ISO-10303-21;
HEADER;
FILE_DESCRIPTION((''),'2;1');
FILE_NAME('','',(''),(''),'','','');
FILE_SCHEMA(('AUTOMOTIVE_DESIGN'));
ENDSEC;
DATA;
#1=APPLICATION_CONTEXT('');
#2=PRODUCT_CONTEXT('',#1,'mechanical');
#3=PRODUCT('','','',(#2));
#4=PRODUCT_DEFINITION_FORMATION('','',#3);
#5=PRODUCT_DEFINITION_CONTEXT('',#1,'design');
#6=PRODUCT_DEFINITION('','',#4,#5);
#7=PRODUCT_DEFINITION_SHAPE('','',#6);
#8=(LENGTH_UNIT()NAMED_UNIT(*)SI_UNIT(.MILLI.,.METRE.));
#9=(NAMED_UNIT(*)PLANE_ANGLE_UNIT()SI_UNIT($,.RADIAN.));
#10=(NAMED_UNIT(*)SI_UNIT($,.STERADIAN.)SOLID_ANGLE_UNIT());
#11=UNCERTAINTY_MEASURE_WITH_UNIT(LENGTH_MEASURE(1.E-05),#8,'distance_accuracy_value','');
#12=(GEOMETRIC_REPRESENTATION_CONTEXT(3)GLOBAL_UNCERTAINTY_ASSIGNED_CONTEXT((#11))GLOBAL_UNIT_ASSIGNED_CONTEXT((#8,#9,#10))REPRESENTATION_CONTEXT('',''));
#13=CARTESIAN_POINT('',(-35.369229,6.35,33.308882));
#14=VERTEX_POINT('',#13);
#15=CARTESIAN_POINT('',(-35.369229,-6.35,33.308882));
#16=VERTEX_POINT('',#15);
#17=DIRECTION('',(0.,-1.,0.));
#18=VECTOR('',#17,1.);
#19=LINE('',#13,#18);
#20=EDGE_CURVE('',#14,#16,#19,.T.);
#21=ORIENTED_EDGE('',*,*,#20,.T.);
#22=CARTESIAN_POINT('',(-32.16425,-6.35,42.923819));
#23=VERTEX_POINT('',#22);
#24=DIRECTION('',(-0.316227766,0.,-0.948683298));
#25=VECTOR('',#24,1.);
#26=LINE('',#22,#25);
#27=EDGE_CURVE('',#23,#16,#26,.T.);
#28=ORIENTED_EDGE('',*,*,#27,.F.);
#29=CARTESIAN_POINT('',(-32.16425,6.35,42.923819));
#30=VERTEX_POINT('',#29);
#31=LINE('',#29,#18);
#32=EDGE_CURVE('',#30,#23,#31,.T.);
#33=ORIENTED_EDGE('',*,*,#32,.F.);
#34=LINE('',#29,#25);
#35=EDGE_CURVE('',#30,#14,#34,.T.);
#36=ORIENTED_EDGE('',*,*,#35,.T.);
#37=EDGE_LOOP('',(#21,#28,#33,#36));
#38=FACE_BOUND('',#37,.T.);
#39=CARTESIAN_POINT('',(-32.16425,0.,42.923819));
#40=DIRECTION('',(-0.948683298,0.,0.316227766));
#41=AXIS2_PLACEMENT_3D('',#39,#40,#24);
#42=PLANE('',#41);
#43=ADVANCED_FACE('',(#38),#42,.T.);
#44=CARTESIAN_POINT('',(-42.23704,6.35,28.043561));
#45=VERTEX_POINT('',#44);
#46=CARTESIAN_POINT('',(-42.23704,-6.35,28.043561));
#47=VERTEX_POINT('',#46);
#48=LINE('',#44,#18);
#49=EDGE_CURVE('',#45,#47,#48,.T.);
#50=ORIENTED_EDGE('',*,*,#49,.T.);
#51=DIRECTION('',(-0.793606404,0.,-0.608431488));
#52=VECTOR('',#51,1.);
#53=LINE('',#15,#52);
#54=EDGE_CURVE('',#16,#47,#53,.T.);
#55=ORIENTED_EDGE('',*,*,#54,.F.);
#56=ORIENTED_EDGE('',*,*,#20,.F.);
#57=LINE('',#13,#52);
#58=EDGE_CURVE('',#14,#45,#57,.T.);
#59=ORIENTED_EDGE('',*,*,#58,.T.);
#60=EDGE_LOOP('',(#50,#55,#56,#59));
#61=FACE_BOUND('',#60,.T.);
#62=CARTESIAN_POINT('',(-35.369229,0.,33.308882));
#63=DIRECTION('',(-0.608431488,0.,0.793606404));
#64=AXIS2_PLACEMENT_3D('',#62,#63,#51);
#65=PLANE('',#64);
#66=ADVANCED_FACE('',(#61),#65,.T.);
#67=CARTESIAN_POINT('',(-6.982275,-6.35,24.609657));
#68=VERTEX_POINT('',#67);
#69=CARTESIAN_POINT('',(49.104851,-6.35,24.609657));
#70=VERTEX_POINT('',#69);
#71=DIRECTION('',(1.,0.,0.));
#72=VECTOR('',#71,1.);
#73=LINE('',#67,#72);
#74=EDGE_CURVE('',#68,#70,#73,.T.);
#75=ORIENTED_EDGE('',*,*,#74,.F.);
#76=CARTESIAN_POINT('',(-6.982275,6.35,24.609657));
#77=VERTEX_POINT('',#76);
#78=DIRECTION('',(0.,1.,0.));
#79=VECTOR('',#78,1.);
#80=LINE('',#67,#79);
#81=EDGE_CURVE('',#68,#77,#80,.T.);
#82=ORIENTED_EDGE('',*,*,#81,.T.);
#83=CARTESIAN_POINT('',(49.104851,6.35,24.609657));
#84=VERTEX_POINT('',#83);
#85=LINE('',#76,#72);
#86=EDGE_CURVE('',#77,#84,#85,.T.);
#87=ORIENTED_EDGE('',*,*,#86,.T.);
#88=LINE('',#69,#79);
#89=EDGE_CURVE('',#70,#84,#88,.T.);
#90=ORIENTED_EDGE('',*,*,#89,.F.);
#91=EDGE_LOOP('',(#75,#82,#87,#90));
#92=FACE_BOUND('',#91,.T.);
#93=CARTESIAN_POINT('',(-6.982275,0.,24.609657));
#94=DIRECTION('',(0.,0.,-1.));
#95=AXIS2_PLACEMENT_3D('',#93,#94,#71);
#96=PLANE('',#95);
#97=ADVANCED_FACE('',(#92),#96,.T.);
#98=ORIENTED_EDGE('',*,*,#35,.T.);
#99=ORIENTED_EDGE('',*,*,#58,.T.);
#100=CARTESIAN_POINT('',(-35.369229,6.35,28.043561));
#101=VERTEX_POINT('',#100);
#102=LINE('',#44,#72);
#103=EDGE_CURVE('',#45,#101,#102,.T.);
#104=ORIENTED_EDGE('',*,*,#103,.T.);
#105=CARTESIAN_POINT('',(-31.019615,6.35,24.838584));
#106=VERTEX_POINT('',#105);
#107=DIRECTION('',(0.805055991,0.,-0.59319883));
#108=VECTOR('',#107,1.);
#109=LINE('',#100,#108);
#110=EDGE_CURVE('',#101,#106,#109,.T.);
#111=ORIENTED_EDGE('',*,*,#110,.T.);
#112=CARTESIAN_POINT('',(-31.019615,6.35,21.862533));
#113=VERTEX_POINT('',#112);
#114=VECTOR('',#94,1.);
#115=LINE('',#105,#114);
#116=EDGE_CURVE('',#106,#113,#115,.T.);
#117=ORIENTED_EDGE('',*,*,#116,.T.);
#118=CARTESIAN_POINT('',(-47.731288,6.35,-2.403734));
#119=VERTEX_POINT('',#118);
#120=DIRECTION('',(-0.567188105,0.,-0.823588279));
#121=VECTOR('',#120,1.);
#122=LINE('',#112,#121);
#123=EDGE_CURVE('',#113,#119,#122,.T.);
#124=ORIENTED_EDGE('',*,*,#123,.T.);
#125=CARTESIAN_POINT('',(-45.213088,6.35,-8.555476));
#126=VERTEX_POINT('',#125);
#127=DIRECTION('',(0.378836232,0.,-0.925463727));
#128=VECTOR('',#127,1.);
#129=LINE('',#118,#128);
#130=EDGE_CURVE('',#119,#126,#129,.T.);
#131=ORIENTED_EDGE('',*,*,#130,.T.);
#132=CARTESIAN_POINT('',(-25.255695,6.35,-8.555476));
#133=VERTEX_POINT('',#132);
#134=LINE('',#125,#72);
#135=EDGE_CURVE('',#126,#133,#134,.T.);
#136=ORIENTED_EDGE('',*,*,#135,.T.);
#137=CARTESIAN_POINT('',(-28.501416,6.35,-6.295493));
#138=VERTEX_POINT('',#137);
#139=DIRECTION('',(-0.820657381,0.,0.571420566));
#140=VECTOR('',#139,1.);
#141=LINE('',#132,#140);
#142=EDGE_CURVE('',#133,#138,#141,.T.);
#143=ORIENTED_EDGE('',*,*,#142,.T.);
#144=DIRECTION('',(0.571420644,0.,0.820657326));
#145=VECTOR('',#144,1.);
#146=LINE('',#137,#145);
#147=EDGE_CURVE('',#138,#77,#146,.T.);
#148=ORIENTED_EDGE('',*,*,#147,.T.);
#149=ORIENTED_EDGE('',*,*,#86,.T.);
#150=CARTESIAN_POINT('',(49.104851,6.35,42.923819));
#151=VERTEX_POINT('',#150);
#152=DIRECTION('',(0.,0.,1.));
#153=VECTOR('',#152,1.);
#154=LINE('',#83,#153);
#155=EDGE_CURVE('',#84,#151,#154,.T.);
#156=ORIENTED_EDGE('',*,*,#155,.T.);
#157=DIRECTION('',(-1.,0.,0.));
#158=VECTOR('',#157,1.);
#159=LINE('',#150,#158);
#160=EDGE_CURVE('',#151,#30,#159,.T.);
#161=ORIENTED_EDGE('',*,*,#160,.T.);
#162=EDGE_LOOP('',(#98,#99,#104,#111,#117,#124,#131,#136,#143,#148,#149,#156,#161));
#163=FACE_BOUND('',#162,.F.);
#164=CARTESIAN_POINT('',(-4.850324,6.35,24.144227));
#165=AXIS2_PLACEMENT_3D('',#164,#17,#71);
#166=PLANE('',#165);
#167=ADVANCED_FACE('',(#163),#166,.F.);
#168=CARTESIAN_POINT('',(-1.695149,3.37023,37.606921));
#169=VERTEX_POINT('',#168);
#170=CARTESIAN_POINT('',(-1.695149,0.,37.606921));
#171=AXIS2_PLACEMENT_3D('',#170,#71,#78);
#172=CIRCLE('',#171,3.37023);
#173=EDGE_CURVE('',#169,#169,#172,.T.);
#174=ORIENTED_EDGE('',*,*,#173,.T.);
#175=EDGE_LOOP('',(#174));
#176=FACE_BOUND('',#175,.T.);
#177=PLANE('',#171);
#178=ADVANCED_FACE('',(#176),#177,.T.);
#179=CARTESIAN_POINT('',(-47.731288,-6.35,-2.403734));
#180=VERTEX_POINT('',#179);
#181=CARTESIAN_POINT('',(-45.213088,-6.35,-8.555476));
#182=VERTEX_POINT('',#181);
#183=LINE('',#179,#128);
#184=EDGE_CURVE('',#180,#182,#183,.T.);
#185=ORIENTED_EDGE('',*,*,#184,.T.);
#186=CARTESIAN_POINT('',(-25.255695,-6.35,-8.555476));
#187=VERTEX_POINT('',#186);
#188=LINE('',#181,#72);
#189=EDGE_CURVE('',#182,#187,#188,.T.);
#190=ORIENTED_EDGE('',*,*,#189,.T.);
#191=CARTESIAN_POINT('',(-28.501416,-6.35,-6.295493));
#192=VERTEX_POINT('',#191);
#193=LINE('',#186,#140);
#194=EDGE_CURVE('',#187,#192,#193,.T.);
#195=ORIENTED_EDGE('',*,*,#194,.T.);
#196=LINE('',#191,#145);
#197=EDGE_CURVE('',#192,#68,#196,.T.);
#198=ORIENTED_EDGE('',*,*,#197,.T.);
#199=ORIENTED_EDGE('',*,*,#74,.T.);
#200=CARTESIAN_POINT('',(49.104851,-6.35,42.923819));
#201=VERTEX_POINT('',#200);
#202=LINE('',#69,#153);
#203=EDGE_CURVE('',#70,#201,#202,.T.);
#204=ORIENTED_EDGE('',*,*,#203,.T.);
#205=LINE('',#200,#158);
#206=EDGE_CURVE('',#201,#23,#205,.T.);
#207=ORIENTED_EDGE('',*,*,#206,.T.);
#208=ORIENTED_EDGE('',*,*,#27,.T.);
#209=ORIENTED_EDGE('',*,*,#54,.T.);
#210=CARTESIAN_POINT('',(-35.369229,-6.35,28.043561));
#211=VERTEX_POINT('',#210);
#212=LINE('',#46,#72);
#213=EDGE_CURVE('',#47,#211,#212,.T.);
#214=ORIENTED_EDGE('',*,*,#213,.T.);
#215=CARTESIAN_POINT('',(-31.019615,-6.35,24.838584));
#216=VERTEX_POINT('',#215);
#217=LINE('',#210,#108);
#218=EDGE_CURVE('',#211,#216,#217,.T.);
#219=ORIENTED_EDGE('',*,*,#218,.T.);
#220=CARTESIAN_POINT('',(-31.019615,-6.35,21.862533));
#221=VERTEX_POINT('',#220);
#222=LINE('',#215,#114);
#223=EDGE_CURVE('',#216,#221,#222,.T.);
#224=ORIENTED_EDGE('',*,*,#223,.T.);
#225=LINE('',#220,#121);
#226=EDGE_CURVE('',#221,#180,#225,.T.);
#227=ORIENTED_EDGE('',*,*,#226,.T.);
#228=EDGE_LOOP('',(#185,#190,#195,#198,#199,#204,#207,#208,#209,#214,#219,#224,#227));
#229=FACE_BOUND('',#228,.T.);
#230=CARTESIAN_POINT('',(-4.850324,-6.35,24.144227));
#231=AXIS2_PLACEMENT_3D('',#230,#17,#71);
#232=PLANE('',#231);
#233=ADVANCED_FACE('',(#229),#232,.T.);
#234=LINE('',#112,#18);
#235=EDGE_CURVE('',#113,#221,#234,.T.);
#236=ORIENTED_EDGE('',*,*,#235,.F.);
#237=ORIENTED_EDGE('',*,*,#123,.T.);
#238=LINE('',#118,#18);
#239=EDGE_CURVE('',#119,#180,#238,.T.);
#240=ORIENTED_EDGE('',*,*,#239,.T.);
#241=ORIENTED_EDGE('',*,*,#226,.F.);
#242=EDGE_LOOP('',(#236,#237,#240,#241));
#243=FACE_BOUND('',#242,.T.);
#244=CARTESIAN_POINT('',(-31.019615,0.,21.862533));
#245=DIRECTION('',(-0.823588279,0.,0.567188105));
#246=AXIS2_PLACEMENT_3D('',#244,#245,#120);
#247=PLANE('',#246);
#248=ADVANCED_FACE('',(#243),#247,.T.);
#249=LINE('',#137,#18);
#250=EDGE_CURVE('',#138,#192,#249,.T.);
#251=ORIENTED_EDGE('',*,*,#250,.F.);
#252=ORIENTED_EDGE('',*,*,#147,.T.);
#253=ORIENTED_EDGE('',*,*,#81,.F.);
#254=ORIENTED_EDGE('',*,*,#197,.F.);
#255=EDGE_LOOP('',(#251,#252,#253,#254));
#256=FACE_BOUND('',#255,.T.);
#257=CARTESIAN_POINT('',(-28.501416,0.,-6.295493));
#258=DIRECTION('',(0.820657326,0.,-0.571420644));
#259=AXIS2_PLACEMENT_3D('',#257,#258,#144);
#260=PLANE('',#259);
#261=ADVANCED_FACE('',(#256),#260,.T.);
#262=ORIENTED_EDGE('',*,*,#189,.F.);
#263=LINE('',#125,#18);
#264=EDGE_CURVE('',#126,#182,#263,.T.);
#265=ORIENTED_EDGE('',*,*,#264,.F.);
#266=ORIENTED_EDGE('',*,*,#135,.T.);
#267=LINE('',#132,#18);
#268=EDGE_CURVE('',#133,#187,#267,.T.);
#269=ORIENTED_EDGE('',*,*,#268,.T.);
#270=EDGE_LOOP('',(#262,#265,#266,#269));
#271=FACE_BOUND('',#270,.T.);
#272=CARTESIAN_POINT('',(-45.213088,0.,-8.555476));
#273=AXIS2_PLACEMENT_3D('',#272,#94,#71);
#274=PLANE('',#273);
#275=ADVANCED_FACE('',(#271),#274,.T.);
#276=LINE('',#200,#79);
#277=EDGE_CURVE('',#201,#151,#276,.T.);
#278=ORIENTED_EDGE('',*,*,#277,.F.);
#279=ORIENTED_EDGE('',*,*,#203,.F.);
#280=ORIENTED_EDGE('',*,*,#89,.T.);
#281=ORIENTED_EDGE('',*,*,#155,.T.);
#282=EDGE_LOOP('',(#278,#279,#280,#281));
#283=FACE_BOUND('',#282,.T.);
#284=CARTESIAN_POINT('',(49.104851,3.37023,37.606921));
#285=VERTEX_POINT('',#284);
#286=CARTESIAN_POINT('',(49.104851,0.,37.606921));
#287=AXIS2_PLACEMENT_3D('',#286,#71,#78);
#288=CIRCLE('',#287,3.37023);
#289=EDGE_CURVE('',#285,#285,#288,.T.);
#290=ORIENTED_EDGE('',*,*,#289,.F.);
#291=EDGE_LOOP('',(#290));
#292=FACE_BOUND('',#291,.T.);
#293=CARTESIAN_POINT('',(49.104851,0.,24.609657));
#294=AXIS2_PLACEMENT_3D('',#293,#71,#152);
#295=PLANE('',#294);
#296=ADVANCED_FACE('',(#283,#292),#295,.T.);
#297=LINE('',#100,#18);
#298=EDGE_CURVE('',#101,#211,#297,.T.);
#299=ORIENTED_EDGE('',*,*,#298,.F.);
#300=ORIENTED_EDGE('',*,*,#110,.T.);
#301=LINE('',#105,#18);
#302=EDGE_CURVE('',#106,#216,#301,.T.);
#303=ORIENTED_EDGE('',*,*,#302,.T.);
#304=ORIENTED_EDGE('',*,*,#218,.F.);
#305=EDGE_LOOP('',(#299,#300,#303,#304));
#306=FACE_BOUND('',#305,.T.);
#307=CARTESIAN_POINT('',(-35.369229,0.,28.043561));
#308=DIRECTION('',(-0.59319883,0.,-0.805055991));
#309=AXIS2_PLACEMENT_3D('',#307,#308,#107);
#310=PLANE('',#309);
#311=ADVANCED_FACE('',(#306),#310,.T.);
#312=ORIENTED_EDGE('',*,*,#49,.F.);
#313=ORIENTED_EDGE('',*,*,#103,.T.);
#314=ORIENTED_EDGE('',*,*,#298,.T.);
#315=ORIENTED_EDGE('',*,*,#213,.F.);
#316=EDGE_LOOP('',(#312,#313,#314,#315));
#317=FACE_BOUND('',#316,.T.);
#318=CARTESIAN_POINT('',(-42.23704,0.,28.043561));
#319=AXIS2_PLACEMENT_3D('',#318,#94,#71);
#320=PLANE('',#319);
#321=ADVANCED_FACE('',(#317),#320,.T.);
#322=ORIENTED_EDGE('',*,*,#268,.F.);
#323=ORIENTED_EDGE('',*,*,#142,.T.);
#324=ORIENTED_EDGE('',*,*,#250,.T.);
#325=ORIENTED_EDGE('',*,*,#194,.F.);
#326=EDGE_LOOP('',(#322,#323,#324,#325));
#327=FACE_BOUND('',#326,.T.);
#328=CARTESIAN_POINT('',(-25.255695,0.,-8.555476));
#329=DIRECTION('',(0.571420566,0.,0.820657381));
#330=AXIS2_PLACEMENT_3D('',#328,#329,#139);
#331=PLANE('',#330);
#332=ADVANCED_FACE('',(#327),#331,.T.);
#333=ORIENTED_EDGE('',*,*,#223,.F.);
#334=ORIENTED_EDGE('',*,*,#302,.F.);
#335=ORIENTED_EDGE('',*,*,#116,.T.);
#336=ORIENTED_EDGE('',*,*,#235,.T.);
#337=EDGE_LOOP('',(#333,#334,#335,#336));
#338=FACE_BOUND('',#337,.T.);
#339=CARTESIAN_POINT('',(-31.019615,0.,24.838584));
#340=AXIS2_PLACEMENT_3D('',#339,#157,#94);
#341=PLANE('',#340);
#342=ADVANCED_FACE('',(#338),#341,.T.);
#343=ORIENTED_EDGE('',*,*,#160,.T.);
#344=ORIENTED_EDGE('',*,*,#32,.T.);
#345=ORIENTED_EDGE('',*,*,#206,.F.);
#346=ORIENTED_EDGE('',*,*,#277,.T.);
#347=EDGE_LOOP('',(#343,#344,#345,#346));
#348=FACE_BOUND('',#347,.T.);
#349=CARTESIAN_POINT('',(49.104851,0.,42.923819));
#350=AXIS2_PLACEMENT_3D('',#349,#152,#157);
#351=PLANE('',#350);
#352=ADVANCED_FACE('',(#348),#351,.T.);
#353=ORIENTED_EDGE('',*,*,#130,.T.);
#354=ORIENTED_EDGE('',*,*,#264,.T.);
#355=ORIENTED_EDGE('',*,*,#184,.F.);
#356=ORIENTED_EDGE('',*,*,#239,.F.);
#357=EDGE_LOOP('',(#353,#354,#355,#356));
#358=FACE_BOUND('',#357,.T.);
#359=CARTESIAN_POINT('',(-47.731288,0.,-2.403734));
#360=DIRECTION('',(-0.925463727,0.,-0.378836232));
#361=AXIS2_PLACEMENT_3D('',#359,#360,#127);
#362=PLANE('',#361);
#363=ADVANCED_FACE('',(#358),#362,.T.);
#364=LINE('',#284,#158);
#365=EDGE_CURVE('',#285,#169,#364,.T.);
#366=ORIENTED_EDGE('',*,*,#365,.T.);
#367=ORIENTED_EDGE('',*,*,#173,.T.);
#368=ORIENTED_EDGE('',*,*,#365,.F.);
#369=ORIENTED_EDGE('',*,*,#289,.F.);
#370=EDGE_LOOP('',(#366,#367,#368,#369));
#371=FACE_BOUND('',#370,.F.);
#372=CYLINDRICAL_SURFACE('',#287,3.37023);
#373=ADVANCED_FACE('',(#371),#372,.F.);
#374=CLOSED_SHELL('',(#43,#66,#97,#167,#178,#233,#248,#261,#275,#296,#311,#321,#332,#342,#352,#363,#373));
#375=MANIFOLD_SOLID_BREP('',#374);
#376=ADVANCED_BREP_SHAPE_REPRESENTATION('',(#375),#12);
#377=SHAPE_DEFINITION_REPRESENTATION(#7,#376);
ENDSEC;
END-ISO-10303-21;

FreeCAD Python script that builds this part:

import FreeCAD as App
import Part
import Sketcher

doc = App.newDocument("Part")
params = doc.addObject("Spreadsheet::Sheet", "Params")
for row, (alias, value) in enumerate([
    ("pad1_length", "0.5 in"),
    ("pocket1_length", "2 in"),
], start=1):
    params.set(f"A{row}", alias)
    params.set(f"B{row}", "=" + value)
    params.setAlias(f"B{row}", alias)

body = doc.addObject("PartDesign::Body", "Body")

# Sketch on XZ plane
sketch1 = body.newObject("Sketcher::SketchObject", "Sketch")
sketch1.AttachmentSupport = (doc.getObject("XZ_Plane"), [""])
sketch1.MapMode = "FlatFace"
sketch1.addGeometry([
    Part.LineSegment(App.Vector(49.104851, 42.923819, 0), App.Vector(-32.16425, 42.923819, 0)),  # 0
    Part.LineSegment(App.Vector(-32.16425, 42.923819, 0), App.Vector(-35.369229, 33.308882, 0)),  # 1
    Part.LineSegment(App.Vector(-35.369229, 33.308882, 0), App.Vector(-42.23704, 28.043561, 0)),  # 2
    Part.LineSegment(App.Vector(-42.23704, 28.043561, 0), App.Vector(-35.369229, 28.043561, 0)),  # 3
    Part.LineSegment(App.Vector(-35.369229, 28.043561, 0), App.Vector(-31.019615, 24.838584, 0)),  # 4
    Part.LineSegment(App.Vector(-31.019615, 24.838584, 0), App.Vector(-31.019615, 21.862533, 0)),  # 5
    Part.LineSegment(App.Vector(-31.019615, 21.862533, 0), App.Vector(-47.731288, -2.403734, 0)),  # 6
    Part.LineSegment(App.Vector(-47.731288, -2.403734, 0), App.Vector(-45.213088, -8.555476, 0)),  # 7
    Part.LineSegment(App.Vector(-45.213088, -8.555476, 0), App.Vector(-25.255695, -8.555476, 0)),  # 8
    Part.LineSegment(App.Vector(-25.255695, -8.555476, 0), App.Vector(-28.501416, -6.295493, 0)),  # 9
    Part.LineSegment(App.Vector(-28.501416, -6.295493, 0), App.Vector(-6.982275, 24.609657, 0)),  # 10
    Part.LineSegment(App.Vector(-6.982275, 24.609657, 0), App.Vector(49.104851, 24.609657, 0)),  # 11
    Part.LineSegment(App.Vector(49.104851, 24.609657, 0), App.Vector(49.104851, 42.923819, 0)),  # 12
], False)
sketch1.addConstraint([
    Sketcher.Constraint("Coincident", 0, 2, 1, 1),
    Sketcher.Constraint("Coincident", 1, 2, 2, 1),
    Sketcher.Constraint("Coincident", 2, 2, 3, 1),
    Sketcher.Constraint("Coincident", 3, 2, 4, 1),
    Sketcher.Constraint("Coincident", 4, 2, 5, 1),
    Sketcher.Constraint("Coincident", 5, 2, 6, 1),
    Sketcher.Constraint("Coincident", 6, 2, 7, 1),
    Sketcher.Constraint("Coincident", 7, 2, 8, 1),
    Sketcher.Constraint("Coincident", 8, 2, 9, 1),
    Sketcher.Constraint("Coincident", 9, 2, 10, 1),
    Sketcher.Constraint("Coincident", 10, 2, 11, 1),
    Sketcher.Constraint("Coincident", 11, 2, 12, 1),
    Sketcher.Constraint("Coincident", 12, 2, 0, 1),
    Sketcher.Constraint("Horizontal", 0),
    Sketcher.Constraint("Horizontal", 3),
    Sketcher.Constraint("Vertical", 5),
    Sketcher.Constraint("Horizontal", 8),
    Sketcher.Constraint("Horizontal", 11),
    Sketcher.Constraint("Vertical", 12),
    Sketcher.Constraint("Perpendicular", 9, 10),
    Sketcher.Constraint("Vertical", 1, 2, 3, 2),
    Sketcher.Constraint("DistanceX", 0, 2, 0, 1, 81.269101),
    Sketcher.Constraint("Distance", 7, 6.647199),
    Sketcher.Constraint("DistanceX", 3, 1, 3, 2, 6.867811),
    Sketcher.Constraint("DistanceY", 5, 2, 5, 1, 2.976051),
    Sketcher.Constraint("DistanceX", 6, 2, 7, 2, 2.5182),
    Sketcher.Constraint("DistanceX", 5, 2, 9, 2, 2.518199),
    Sketcher.Constraint("Distance", 4, 5.402871),
    Sketcher.Constraint("Distance", 10, 37.659019),
    Sketcher.Constraint("DistanceX", 8, 1, 8, 2, 19.957393),
    Sketcher.Constraint("DistanceX", 11, 1, 11, 2, 56.087126),
    Sketcher.Constraint("DistanceY", 12, 1, 12, 2, 18.314162),
    Sketcher.Constraint("DistanceX", 0, 2, -1, 1, 32.16425),
    Sketcher.Constraint("DistanceY", -1, 1, 0, 2, 42.923819),
    Sketcher.Constraint("DistanceX", 1, 2, -1, 1, 35.369229),
    Sketcher.Constraint("DistanceY", -1, 1, 1, 2, 33.308882),
    Sketcher.Constraint("DistanceY", -1, 1, 2, 2, 28.043561),
    Sketcher.Constraint("DistanceY", 5, 2, 3, 2, 6.181028),
    Sketcher.Constraint("DistanceY", 6, 2, 4, 2, 27.242318),
])
pad1 = body.newObject("PartDesign::Pad", "Pad")
pad1.Profile = sketch1
pad1.setExpression("Length", "Params.pad1_length")
pad1.Midplane = True

# Sketch on YZ plane
sketch2 = body.newObject("Sketcher::SketchObject", "Sketch001")
sketch2.AttachmentSupport = (doc.getObject("YZ_Plane"), [""])
sketch2.MapMode = "FlatFace"
sketch2.AttachmentOffset = App.Placement(App.Vector(0, 0, 49.104851), App.Rotation())
sketch2.addGeometry(Part.Circle(App.Vector(0, 37.606921, 0), App.Vector(0, 0, 1), 3.37023), False)
sketch2.addConstraint([
    Sketcher.Constraint("PointOnObject", 0, 3, -2),
    Sketcher.Constraint("Diameter", 0, 6.74046),
    Sketcher.Constraint("DistanceY", -1, 1, 0, 3, 37.606921),
])
pocket1 = body.newObject("PartDesign::Pocket", "Pocket")
pocket1.Profile = sketch2
pocket1.setExpression("Length", "Params.pocket1_length")

doc.recompute()
